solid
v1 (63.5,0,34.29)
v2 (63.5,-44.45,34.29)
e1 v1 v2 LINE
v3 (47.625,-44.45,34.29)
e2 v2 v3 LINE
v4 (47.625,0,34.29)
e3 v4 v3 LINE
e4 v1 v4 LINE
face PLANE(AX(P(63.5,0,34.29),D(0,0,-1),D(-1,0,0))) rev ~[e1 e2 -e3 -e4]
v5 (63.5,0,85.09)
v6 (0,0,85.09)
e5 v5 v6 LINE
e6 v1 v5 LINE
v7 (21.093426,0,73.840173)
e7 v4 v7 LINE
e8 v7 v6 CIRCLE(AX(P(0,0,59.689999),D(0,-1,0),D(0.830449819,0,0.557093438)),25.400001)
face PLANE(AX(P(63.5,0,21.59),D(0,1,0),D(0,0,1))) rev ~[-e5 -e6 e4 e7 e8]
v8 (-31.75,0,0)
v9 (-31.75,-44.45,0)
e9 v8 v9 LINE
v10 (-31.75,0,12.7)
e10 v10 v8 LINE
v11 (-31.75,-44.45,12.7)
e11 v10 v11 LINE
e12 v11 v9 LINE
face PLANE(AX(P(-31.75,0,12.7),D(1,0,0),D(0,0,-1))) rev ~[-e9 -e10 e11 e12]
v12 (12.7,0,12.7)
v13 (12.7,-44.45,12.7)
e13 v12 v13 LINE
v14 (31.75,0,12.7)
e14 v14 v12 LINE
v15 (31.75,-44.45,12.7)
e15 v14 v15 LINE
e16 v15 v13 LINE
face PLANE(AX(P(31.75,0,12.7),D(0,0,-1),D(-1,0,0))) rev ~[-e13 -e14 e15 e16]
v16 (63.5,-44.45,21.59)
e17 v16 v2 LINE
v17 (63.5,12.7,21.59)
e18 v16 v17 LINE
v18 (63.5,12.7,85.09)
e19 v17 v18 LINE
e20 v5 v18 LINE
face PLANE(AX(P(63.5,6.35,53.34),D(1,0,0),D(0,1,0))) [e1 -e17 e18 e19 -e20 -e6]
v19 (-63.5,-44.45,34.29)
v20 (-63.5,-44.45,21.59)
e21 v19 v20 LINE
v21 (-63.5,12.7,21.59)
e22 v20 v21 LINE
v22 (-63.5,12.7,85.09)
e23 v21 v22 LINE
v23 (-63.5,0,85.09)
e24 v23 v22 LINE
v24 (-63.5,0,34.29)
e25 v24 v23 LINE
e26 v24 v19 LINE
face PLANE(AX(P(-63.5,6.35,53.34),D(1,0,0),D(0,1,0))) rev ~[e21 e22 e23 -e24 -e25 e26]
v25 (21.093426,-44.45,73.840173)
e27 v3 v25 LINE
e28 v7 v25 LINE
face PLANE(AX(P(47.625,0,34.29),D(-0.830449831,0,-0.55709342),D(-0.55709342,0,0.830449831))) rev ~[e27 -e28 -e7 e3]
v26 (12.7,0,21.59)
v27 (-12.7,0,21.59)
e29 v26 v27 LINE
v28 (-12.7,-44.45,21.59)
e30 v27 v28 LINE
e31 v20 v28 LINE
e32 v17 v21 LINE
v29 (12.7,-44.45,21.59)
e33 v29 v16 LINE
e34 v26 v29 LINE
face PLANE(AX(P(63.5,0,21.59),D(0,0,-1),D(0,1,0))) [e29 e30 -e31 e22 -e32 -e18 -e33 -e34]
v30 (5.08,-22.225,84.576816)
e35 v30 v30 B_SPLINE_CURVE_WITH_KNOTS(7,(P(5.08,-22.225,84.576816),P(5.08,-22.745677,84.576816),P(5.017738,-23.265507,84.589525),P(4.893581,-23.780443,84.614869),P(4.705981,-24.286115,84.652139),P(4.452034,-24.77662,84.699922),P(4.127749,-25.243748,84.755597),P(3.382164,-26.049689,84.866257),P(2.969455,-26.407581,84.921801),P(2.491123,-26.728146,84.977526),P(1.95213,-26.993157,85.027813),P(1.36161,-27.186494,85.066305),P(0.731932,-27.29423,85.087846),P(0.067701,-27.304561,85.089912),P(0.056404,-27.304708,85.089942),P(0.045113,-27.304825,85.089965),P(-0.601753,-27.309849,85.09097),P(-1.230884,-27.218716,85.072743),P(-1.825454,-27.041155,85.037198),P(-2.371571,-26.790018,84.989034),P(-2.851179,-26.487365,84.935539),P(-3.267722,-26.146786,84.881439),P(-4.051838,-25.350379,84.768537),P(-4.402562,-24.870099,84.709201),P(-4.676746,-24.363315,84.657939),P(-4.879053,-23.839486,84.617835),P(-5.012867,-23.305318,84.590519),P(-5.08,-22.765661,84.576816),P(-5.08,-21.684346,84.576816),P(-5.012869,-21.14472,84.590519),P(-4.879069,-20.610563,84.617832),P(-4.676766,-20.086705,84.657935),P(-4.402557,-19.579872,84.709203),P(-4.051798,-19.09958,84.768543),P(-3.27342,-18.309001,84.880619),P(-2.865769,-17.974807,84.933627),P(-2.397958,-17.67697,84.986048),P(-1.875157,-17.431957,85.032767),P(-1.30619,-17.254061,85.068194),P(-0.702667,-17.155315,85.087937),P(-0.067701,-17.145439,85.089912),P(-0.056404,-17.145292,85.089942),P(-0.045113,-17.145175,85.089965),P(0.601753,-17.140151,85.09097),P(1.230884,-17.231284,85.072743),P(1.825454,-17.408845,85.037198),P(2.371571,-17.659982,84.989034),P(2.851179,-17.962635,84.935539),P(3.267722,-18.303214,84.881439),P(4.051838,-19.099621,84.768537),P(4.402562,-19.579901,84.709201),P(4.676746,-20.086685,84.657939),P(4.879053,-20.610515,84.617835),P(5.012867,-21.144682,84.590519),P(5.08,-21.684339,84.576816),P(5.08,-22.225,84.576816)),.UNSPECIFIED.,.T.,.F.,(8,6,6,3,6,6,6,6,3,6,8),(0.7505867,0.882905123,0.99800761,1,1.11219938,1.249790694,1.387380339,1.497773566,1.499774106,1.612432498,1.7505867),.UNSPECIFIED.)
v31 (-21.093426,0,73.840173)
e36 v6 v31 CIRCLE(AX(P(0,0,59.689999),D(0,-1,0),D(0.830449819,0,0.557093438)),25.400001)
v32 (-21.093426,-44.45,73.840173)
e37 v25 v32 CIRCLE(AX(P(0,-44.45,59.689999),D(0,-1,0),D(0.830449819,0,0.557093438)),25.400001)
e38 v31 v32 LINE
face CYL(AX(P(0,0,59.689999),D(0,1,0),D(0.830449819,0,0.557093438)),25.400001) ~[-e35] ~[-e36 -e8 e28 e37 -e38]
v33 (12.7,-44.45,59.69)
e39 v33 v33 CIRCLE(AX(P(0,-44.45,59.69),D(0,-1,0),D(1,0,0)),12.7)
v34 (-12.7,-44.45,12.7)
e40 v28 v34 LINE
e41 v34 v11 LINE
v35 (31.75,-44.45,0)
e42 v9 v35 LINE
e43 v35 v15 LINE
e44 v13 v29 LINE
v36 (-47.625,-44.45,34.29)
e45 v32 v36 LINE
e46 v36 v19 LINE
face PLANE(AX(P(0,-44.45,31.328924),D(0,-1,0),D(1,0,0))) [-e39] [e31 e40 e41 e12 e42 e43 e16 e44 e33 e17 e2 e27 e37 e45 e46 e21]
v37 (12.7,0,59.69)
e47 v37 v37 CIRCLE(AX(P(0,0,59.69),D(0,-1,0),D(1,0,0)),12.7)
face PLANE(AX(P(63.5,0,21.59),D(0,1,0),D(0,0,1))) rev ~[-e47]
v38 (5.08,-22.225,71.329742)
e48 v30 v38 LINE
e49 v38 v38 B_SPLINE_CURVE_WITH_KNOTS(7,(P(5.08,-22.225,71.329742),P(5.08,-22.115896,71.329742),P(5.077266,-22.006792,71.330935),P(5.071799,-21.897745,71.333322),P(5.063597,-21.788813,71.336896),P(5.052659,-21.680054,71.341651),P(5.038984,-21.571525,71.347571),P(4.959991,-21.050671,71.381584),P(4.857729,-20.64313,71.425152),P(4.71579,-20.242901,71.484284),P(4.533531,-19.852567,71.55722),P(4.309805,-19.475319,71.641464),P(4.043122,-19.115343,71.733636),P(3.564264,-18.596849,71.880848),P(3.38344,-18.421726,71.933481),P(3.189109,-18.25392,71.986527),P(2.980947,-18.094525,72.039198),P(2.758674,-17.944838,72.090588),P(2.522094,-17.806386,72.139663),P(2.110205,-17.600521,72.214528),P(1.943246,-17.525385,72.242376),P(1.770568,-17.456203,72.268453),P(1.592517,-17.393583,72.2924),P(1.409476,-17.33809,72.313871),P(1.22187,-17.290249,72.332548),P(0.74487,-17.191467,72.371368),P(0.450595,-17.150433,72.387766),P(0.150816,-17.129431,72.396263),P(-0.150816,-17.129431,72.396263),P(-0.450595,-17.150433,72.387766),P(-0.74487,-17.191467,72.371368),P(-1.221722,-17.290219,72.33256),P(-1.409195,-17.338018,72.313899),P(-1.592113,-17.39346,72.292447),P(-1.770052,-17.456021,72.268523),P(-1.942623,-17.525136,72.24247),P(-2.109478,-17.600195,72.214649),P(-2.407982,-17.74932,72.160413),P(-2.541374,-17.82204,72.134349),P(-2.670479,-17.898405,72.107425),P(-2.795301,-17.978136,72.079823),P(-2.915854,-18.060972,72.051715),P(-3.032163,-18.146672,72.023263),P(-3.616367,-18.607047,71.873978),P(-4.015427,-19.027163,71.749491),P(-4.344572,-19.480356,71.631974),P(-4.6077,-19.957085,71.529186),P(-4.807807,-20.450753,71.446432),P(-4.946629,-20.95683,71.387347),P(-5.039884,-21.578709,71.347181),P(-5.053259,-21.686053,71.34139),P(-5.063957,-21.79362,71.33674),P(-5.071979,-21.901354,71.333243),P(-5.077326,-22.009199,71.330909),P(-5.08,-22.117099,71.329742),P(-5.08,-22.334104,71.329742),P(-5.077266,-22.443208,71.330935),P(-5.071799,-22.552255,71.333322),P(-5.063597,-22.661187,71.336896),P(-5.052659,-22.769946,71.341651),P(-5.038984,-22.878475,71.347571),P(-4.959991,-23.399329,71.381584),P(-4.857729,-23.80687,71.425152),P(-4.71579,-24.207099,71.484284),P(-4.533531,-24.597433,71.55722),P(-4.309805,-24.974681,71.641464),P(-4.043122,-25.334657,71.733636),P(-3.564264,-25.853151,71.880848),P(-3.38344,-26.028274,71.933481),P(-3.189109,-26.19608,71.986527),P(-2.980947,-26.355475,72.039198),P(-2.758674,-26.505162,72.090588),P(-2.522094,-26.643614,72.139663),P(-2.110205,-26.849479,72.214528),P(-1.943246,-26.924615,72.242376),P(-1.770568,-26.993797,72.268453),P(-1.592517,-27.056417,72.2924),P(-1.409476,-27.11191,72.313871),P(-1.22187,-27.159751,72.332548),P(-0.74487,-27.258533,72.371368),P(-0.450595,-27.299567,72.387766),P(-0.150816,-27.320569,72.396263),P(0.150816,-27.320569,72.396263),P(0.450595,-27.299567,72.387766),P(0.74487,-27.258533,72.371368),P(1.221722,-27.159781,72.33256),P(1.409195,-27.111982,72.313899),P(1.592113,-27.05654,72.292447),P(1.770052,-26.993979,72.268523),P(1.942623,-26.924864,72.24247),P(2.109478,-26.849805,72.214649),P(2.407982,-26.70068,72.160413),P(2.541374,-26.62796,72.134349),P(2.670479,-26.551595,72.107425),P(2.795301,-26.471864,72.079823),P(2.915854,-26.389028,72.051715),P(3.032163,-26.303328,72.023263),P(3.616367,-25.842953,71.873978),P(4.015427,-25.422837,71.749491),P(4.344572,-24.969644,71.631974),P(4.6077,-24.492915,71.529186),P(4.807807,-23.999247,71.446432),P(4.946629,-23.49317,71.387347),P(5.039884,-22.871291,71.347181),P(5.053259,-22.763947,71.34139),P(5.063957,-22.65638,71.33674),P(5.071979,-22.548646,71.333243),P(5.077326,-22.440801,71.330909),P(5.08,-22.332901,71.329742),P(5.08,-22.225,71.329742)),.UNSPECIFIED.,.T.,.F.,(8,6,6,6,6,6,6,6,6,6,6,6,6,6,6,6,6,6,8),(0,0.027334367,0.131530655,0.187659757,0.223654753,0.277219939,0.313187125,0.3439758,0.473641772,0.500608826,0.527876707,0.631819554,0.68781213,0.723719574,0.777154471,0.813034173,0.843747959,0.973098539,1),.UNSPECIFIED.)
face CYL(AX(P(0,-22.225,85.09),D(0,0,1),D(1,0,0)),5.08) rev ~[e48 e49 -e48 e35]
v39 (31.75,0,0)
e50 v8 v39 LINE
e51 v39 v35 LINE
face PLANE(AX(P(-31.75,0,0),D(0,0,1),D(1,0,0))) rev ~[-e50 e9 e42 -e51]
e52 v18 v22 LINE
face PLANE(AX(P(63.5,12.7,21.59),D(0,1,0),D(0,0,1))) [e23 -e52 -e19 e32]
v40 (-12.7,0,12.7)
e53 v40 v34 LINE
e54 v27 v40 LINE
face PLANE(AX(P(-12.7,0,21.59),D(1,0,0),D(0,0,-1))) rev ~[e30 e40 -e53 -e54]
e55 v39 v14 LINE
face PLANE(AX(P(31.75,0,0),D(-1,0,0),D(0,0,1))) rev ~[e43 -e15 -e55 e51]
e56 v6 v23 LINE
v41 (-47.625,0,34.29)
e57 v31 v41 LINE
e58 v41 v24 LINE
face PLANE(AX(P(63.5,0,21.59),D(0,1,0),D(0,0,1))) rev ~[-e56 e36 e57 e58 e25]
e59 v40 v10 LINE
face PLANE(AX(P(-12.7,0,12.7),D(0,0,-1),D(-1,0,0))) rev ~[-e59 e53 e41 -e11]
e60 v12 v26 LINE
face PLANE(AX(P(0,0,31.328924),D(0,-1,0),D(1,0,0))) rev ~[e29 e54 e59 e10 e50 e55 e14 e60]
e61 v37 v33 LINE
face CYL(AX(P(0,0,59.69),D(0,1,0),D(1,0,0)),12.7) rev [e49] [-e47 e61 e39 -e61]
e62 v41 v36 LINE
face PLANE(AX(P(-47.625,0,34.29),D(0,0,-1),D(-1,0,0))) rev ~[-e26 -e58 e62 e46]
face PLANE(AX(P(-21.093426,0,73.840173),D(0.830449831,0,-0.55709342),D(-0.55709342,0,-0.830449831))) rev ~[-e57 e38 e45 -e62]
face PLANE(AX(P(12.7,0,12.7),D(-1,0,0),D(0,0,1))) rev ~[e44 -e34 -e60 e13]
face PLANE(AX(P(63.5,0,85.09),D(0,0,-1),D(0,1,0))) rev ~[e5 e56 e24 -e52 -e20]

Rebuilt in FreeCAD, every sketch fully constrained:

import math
import FreeCAD as App
import Part
import Sketcher
Q = App.Units.Quantity

doc = App.newDocument("Part")
body = doc.addObject("PartDesign::Body", "Body")

sketch1 = body.newObject("Sketcher::SketchObject", "Sketch")
sketch1.AttachmentSupport = (doc.getObject("XZ_Plane"), [""])
sketch1.MapMode = "FlatFace"
sketch1.addGeometry([
    Part.LineSegment(App.Vector(-31.75, 0, 0), App.Vector(31.75, 0, 0)),
    Part.LineSegment(App.Vector(31.75, 0, 0), App.Vector(31.75, 12.7, 0)),
    Part.LineSegment(App.Vector(31.75, 12.7, 0), App.Vector(12.7, 12.7, 0)),
    Part.LineSegment(App.Vector(12.7, 12.7, 0), App.Vector(12.7, 21.59, 0)),
    Part.LineSegment(App.Vector(12.7, 21.59, 0), App.Vector(63.5, 21.59, 0)),
    Part.LineSegment(App.Vector(63.5, 21.59, 0), App.Vector(63.5, 34.29, 0)),
    Part.LineSegment(App.Vector(63.5, 34.29, 0), App.Vector(47.625, 34.29, 0)),
    Part.LineSegment(App.Vector(47.625, 34.29, 0), App.Vector(21.093426, 73.840173, 0)),
    Part.ArcOfCircle(Part.Circle(App.Vector(0, 59.689999, 0), App.Vector(0, 0, 1), 25.400001), math.radians(33.855027), math.radians(146.144973)),
    Part.LineSegment(App.Vector(-21.093426, 73.840173, 0), App.Vector(-47.625, 34.29, 0)),
    Part.LineSegment(App.Vector(-47.625, 34.29, 0), App.Vector(-63.5, 34.29, 0)),
    Part.LineSegment(App.Vector(-63.5, 34.29, 0), App.Vector(-63.5, 21.59, 0)),
    Part.LineSegment(App.Vector(-63.5, 21.59, 0), App.Vector(-12.7, 21.59, 0)),
    Part.LineSegment(App.Vector(-12.7, 21.59, 0), App.Vector(-12.7, 12.7, 0)),
    Part.LineSegment(App.Vector(-12.7, 12.7, 0), App.Vector(-31.75, 12.7, 0)),
    Part.LineSegment(App.Vector(-31.75, 12.7, 0), App.Vector(-31.75, 0, 0)),
    Part.Circle(App.Vector(0, 59.69, 0), App.Vector(0, 0, 1), 12.7),
], False)
sketch1.addConstraint([
    Sketcher.Constraint("Coincident", 0, 2, 1, 1),
    Sketcher.Constraint("Coincident", 1, 2, 2, 1),
    Sketcher.Constraint("Coincident", 2, 2, 3, 1),
    Sketcher.Constraint("Coincident", 3, 2, 4, 1),
    Sketcher.Constraint("Coincident", 4, 2, 5, 1),
    Sketcher.Constraint("Coincident", 5, 2, 6, 1),
    Sketcher.Constraint("Coincident", 6, 2, 7, 1),
    Sketcher.Constraint("Tangent", 7, 2, 8, 1),
    Sketcher.Constraint("Tangent", 8, 2, 9, 1),
    Sketcher.Constraint("Coincident", 9, 2, 10, 1),
    Sketcher.Constraint("Coincident", 10, 2, 11, 1),
    Sketcher.Constraint("Coincident", 11, 2, 12, 1),
    Sketcher.Constraint("Coincident", 12, 2, 13, 1),
    Sketcher.Constraint("Coincident", 13, 2, 14, 1),
    Sketcher.Constraint("Coincident", 14, 2, 15, 1),
    Sketcher.Constraint("Coincident", 15, 2, 0, 1),
    Sketcher.Constraint("Horizontal", 0),
    Sketcher.Constraint("Vertical", 1),
    Sketcher.Constraint("Horizontal", 2),
    Sketcher.Constraint("Vertical", 3),
    Sketcher.Constraint("Horizontal", 4),
    Sketcher.Constraint("Vertical", 5),
    Sketcher.Constraint("Horizontal", 6),
    Sketcher.Constraint("Horizontal", 10),
    Sketcher.Constraint("Vertical", 11),
    Sketcher.Constraint("Horizontal", 12),
    Sketcher.Constraint("Vertical", 13),
    Sketcher.Constraint("Horizontal", 14),
    Sketcher.Constraint("Vertical", 15),
    Sketcher.Constraint("Coincident", 16, 3, 8, 3),
    Sketcher.Constraint("Symmetric", 0, 2, 15, 2, -1, 1),
    Sketcher.Constraint("Symmetric", 7, 2, 8, 2, -2),
    Sketcher.Constraint("Symmetric", 5, 2, 10, 2, -2),
    Sketcher.Constraint("Symmetric", 3, 2, 12, 2, -2),
    Sketcher.Constraint("Horizontal", 2, 2, 13, 2),
    Sketcher.Constraint("Equal", 1, 5),
    Sketcher.Constraint("Diameter", 16, Q("1 in")),
    Sketcher.Constraint("Radius", 8, Q("1 in")),
    Sketcher.Constraint("DistanceX", 4, 1, 4, 2, Q("2 in")),
    Sketcher.Constraint("DistanceX", 0, 1, 0, 2, Q("2.5 in")),
    Sketcher.Constraint("DistanceY", 1, 1, 1, 2, Q("0.5 in")),
    Sketcher.Constraint("DistanceY", 9, 2, 8, 3, Q("1 in")),
    Sketcher.Constraint("DistanceX", 10, 2, 3, 2, Q("3 in")),
    Sketcher.Constraint("DistanceY", 3, 1, 3, 2, Q("0.35 in")),
    Sketcher.Constraint("DistanceX", 6, 2, 6, 1, Q("0.625 in")),
])
pad1 = body.newObject("PartDesign::Pad", "Pad")
pad1.Profile = sketch1
pad1.Length = Q("1.75 in")

sketch2 = body.newObject("Sketcher::SketchObject", "Sketch001")
sketch2.AttachmentSupport = (doc.getObject("YZ_Plane"), [""])
sketch2.MapMode = "FlatFace"
sketch2.AttachmentOffset = App.Placement(App.Vector(0, 0, 2.5 * 25.4), App.Rotation())
sketch2.addGeometry([
    Part.LineSegment(App.Vector(0, 85.09, 0), App.Vector(0, 21.59, 0)),
    Part.LineSegment(App.Vector(0, 21.59, 0), App.Vector(12.7, 21.59, 0)),
    Part.LineSegment(App.Vector(12.7, 21.59, 0), App.Vector(12.7, 85.09, 0)),
    Part.LineSegment(App.Vector(12.7, 85.09, 0), App.Vector(0, 85.09, 0)),
], False)
sketch2.addConstraint([
    Sketcher.Constraint("Coincident", 0, 2, 1, 1),
    Sketcher.Constraint("Coincident", 1, 2, 2, 1),
    Sketcher.Constraint("Coincident", 2, 2, 3, 1),
    Sketcher.Constraint("Coincident", 3, 2, 0, 1),
    Sketcher.Constraint("Vertical", 0),
    Sketcher.Constraint("Horizontal", 1),
    Sketcher.Constraint("Vertical", 2),
    Sketcher.Constraint("Horizontal", 3),
    Sketcher.Constraint("PointOnObject", 0, 2, -2),
    Sketcher.Constraint("DistanceX", 1, 1, 1, 2, Q("0.5 in")),
    Sketcher.Constraint("DistanceY", 0, 2, 0, 1, Q("2.5 in")),
    Sketcher.Constraint("DistanceY", -1, 1, 0, 2, Q("0.85 in")),
])
pad2 = body.newObject("PartDesign::Pad", "Pad001")
pad2.Profile = sketch2
pad2.Length = Q("5 in")
pad2.Reversed = True

sketch3 = body.newObject("Sketcher::SketchObject", "Sketch002")
sketch3.AttachmentSupport = (doc.getObject("XY_Plane"), [""])
sketch3.MapMode = "FlatFace"
sketch3.AttachmentOffset = App.Placement(App.Vector(0, 0, 3.35 * 25.4), App.Rotation())
sketch3.addGeometry(Part.Circle(App.Vector(0, -22.225, 0), App.Vector(0, 0, 1), 5.08), False)
sketch3.addConstraint([
    Sketcher.Constraint("PointOnObject", 0, 3, -2),
    Sketcher.Constraint("Diameter", 0, Q("0.4 in")),
    Sketcher.Constraint("DistanceY", 0, 3, -1, 1, Q("0.875 in")),
])
pocket1 = body.newObject("PartDesign::Pocket", "Pocket")
pocket1.Profile = sketch3
pocket1.Length = Q("1 in")

doc.recompute()
